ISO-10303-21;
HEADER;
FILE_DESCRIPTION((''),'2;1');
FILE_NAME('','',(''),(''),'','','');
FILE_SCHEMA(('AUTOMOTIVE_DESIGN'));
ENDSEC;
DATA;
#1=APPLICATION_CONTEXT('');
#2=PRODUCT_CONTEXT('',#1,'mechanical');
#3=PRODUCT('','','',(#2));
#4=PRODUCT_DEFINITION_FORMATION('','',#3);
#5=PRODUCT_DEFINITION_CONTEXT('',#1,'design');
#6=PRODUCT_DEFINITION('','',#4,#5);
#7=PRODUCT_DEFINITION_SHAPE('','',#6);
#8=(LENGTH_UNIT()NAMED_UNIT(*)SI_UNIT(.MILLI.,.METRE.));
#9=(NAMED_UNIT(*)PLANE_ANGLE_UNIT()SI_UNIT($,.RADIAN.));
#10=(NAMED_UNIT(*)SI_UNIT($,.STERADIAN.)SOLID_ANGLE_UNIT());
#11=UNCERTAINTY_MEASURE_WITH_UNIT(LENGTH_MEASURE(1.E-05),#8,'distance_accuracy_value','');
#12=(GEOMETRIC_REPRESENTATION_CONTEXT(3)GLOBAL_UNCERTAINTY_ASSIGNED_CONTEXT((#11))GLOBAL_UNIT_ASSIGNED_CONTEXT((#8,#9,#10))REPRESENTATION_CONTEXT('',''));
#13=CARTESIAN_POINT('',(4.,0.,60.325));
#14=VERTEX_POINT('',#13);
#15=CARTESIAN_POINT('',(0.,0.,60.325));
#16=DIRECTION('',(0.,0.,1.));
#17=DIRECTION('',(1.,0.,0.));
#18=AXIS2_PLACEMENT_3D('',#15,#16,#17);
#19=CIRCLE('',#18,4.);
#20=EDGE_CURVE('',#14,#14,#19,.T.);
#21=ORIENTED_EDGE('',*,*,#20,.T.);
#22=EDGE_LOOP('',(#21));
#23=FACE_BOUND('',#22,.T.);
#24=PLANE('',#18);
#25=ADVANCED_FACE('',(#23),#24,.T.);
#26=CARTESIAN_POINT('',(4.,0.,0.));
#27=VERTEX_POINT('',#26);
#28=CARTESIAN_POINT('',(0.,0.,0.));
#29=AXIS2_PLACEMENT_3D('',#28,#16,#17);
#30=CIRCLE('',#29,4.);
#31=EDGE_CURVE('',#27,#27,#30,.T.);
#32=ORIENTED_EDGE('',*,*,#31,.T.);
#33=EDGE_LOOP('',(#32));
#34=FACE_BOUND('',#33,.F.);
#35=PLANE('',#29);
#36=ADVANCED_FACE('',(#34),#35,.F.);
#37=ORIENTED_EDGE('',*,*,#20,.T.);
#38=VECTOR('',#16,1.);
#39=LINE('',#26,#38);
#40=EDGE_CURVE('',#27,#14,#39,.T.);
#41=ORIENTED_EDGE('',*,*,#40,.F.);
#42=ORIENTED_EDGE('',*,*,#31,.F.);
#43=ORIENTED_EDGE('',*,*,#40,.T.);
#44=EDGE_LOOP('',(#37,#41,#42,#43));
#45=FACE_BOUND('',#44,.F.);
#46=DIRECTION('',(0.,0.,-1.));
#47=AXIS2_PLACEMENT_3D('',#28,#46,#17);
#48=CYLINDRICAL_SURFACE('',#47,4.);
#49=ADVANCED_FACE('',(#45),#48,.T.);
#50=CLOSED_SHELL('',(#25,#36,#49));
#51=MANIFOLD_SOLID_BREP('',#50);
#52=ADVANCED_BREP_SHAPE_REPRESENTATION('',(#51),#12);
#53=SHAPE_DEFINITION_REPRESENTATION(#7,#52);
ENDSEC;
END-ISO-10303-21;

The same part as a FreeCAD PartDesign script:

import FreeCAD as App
import Part
import Sketcher
from FreeCAD import Vector

doc = App.newDocument("Part")
params = doc.addObject("Spreadsheet::Sheet", "Params")
for row, (alias, value) in enumerate([
    ("sketch1_diameter", "8 mm"),
    ("pad1_length", "60.325 mm"),
], start=1):
    params.set(f"A{row}", alias)
    params.set(f"B{row}", "=" + value)
    params.setAlias(f"B{row}", alias)

body = doc.addObject("PartDesign::Body", "Body")

# Sketch on XY plane
sketch1 = doc.addObject("Sketcher::SketchObject", "Sketch")
body.addObject(sketch1)
sketch1.AttachmentSupport = (doc.XY_Plane, [""])
sketch1.MapMode = "FlatFace"
sketch1.addGeometry(Part.Circle(Vector(0, 0, 0), Vector(0, 0, 1), 4), False)
sketch1.addConstraint([
    Sketcher.Constraint("Coincident", 0, 3, -1, 1),
    Sketcher.Constraint("Diameter", 0, 8.0),
])
sketch1.setExpression("Constraints[1]", "Params.sketch1_diameter")
pad1 = doc.addObject("PartDesign::Pad", "Pad")
body.addObject(pad1)
pad1.Profile = sketch1
pad1.setExpression("Length", "Params.pad1_length")

doc.recompute()
